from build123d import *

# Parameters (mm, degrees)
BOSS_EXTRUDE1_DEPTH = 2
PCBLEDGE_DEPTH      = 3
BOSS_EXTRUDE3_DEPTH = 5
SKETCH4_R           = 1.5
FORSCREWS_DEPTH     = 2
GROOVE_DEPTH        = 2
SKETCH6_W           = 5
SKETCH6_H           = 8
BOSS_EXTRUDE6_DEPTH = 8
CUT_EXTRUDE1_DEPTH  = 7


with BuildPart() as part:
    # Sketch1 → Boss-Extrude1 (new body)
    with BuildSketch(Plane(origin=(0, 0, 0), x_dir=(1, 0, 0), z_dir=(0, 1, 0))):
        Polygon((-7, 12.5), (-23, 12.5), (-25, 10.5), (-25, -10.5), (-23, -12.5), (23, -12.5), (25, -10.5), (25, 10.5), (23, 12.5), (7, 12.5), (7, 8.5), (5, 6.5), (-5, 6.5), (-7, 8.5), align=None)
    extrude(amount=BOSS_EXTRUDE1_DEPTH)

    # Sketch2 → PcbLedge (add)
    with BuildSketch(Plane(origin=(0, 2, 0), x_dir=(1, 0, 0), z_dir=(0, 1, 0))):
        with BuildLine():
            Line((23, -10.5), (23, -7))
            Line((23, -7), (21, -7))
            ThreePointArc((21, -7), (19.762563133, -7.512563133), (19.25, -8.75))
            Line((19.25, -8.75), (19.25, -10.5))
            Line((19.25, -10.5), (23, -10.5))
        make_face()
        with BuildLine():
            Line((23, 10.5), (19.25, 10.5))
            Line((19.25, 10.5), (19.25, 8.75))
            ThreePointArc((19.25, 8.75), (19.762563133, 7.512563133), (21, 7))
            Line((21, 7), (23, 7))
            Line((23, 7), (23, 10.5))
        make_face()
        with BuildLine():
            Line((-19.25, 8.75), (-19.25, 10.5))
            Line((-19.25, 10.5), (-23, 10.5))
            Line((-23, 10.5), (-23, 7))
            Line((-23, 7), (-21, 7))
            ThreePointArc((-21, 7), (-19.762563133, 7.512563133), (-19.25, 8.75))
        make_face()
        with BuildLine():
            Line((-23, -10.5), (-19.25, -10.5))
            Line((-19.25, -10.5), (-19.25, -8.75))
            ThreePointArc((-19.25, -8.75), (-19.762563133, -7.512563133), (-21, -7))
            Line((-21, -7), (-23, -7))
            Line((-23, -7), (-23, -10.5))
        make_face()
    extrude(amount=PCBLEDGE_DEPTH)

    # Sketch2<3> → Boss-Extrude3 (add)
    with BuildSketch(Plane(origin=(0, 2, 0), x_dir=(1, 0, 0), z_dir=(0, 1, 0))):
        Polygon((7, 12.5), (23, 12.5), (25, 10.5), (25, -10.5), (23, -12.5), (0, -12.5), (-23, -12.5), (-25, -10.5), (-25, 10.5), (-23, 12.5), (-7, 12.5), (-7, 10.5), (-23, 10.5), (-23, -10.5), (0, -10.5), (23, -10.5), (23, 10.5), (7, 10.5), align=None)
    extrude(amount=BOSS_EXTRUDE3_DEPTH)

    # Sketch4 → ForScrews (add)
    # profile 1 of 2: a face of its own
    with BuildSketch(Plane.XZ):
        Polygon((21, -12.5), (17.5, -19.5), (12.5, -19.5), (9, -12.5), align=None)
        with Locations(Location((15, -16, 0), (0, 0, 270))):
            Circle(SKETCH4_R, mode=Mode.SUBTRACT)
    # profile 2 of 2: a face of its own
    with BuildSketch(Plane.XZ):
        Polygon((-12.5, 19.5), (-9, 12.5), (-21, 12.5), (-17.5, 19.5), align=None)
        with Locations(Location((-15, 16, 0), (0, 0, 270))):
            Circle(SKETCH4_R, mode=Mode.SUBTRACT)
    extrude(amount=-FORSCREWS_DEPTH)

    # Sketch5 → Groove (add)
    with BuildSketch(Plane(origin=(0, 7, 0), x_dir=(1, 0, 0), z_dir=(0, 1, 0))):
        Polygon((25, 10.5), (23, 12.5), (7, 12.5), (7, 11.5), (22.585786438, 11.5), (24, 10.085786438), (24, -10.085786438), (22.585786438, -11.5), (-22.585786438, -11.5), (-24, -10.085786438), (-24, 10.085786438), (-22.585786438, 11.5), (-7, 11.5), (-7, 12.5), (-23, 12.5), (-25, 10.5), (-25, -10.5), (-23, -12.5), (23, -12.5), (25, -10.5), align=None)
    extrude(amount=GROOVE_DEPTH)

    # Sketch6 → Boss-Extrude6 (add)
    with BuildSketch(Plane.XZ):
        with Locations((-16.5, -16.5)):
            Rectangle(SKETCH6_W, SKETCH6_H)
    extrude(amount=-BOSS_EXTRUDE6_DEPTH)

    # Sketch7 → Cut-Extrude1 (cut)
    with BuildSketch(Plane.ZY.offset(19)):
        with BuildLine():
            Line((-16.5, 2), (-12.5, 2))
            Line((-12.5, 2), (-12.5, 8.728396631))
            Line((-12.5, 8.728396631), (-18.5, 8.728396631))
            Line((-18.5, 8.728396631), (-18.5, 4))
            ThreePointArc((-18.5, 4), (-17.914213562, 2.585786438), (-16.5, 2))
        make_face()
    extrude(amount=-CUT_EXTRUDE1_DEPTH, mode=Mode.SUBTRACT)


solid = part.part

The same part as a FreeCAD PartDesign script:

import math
import FreeCAD as App
import Part
import Sketcher

V = App.Vector


def add_polygon(sketch, points):
    """Adds a closed chain of lines whose ends are joined by coincident constraints."""
    first, n = sketch.GeometryCount, len(points)
    for a, b in zip(points, points[1:] + points[:1]):
        sketch.addGeometry(Part.LineSegment(App.Vector(*a, 0), App.Vector(*b, 0)), False)
    for i in range(n):
        sketch.addConstraint(Sketcher.Constraint("Coincident", first + i, 2, first + (i + 1) % n, 1))

doc = App.newDocument("Part")
body = doc.addObject("PartDesign::Body", "Body")

# Sketch on XZ plane
sketch1 = body.newObject("Sketcher::SketchObject", "Sketch")
sketch1.AttachmentSupport = (doc.getObject("XZ_Plane"), [""])
sketch1.MapMode = "FlatFace"
add_polygon(sketch1, [(-7, -12.5), (-23, -12.5), (-25, -10.5), (-25, 10.5), (-23, 12.5), (23, 12.5), (25, 10.5), (25, -10.5), (23, -12.5), (7, -12.5), (7, -8.5), (5, -6.5), (-5, -6.5), (-7, -8.5)])  # lines 0-13
sketch1.addConstraint([
    Sketcher.Constraint("Horizontal", 0),
    Sketcher.Constraint("Vertical", 2),
    Sketcher.Constraint("Horizontal", 4),
    Sketcher.Constraint("Vertical", 6),
    Sketcher.Constraint("Horizontal", 8),
    Sketcher.Constraint("Vertical", 9),
    Sketcher.Constraint("Horizontal", 11),
    Sketcher.Constraint("Vertical", 13),
    Sketcher.Constraint("Symmetric", 0, 2, 4, 2, -1, 1),
    Sketcher.Constraint("Symmetric", 1, 2, 5, 2, -1, 1),
    Sketcher.Constraint("Symmetric", 3, 2, 7, 2, -1, 1),
    Sketcher.Constraint("Symmetric", 9, 2, 12, 2, -2),
    Sketcher.Constraint("Perpendicular", 1, 3),
    Sketcher.Constraint("Perpendicular", 5, 7),
    Sketcher.Constraint("Perpendicular", 7, 10),
    Sketcher.Constraint("Perpendicular", 10, 12),
    Sketcher.Constraint("Horizontal", 2, 2, 5, 2),
    Sketcher.Constraint("Vertical", 0, 2, 3, 2),
    Sketcher.Constraint("Equal", 7, 10),
    Sketcher.Constraint("DistanceX", 0, 2, 0, 1, 16.0),
    Sketcher.Constraint("DistanceX", 4, 1, 4, 2, 46.0),
    Sketcher.Constraint("DistanceX", 11, 2, 11, 1, 10.0),
    Sketcher.Constraint("DistanceY", 2, 1, 2, 2, 21.0),
    Sketcher.Constraint("DistanceY", 9, 1, 9, 2, 4.0),
])
pad1 = body.newObject("PartDesign::Pad", "Pad")
pad1.Profile = sketch1
pad1.Length = 2
pad1.Reversed = True

# Sketch on XZ plane
sketch2 = body.newObject("Sketcher::SketchObject", "Sketch001")
sketch2.AttachmentSupport = (doc.getObject("XZ_Plane"), [""])
sketch2.MapMode = "FlatFace"
sketch2.AttachmentOffset = App.Placement(V(0, 0, -2), App.Rotation())
sketch2.addGeometry([
    Part.LineSegment(V(23, 10.5, 0), V(23, 7, 0)),  # 0
    Part.LineSegment(V(23, 7, 0), V(21, 7, 0)),  # 1
    Part.ArcOfCircle(Part.Circle(V(21, 8.8, 0), V(0, 0, 1), 1.8), math.radians(180), math.radians(270)),  # 2
    Part.LineSegment(V(19.2, 8.8, 0), V(19.2, 10.5, 0)),  # 3
    Part.LineSegment(V(19.2, 10.5, 0), V(23, 10.5, 0)),  # 4
    Part.LineSegment(V(23, -10.5, 0), V(19.2, -10.5, 0)),  # 5
    Part.LineSegment(V(19.2, -10.5, 0), V(19.2, -8.8, 0)),  # 6
    Part.ArcOfCircle(Part.Circle(V(21, -8.8, 0), V(0, 0, 1), 1.8), math.radians(90), math.radians(180)),  # 7
    Part.LineSegment(V(21, -7, 0), V(23, -7, 0)),  # 8
    Part.LineSegment(V(23, -7, 0), V(23, -10.5, 0)),  # 9
    Part.LineSegment(V(-19.2, -8.8, 0), V(-19.2, -10.5, 0)),  # 10
    Part.LineSegment(V(-19.2, -10.5, 0), V(-23, -10.5, 0)),  # 11
    Part.LineSegment(V(-23, -10.5, 0), V(-23, -7, 0)),  # 12
    Part.LineSegment(V(-23, -7, 0), V(-21, -7, 0)),  # 13
    Part.ArcOfCircle(Part.Circle(V(-21, -8.8, 0), V(0, 0, 1), 1.8), math.radians(0), math.radians(90)),  # 14
    Part.LineSegment(V(-23, 10.5, 0), V(-19.2, 10.5, 0)),  # 15
    Part.LineSegment(V(-19.2, 10.5, 0), V(-19.2, 8.8, 0)),  # 16
    Part.ArcOfCircle(Part.Circle(V(-21, 8.8, 0), V(0, 0, 1), 1.8), math.radians(-90), math.radians(0)),  # 17
    Part.LineSegment(V(-21, 7, 0), V(-23, 7, 0)),  # 18
    Part.LineSegment(V(-23, 7, 0), V(-23, 10.5, 0)),  # 19
], False)
sketch2.addConstraint([
    Sketcher.Constraint("Coincident", 0, 2, 1, 1),
    Sketcher.Constraint("Tangent", 1, 2, 2, 2),
    Sketcher.Constraint("Tangent", 2, 1, 3, 1),
    Sketcher.Constraint("Coincident", 3, 2, 4, 1),
    Sketcher.Constraint("Coincident", 4, 2, 0, 1),
    Sketcher.Constraint("Coincident", 5, 2, 6, 1),
    Sketcher.Constraint("Tangent", 6, 2, 7, 2),
    Sketcher.Constraint("Tangent", 7, 1, 8, 1),
    Sketcher.Constraint("Coincident", 8, 2, 9, 1),
    Sketcher.Constraint("Coincident", 9, 2, 5, 1),
    Sketcher.Constraint("Coincident", 10, 2, 11, 1),
    Sketcher.Constraint("Coincident", 11, 2, 12, 1),
    Sketcher.Constraint("Coincident", 12, 2, 13, 1),
    Sketcher.Constraint("Tangent", 13, 2, 14, 2),
    Sketcher.Constraint("Tangent", 14, 1, 10, 1),
    Sketcher.Constraint("Coincident", 15, 2, 16, 1),
    Sketcher.Constraint("Tangent", 16, 2, 17, 2),
    Sketcher.Constraint("Tangent", 17, 1, 18, 1),
    Sketcher.Constraint("Coincident", 18, 2, 19, 1),
    Sketcher.Constraint("Coincident", 19, 2, 15, 1),
    Sketcher.Constraint("Vertical", 0),
    Sketcher.Constraint("Horizontal", 1),
    Sketcher.Constraint("Vertical", 3),
    Sketcher.Constraint("Horizontal", 4),
    Sketcher.Constraint("Horizontal", 5),
    Sketcher.Constraint("Vertical", 6),
    Sketcher.Constraint("Horizontal", 8),
    Sketcher.Constraint("Vertical", 9),
    Sketcher.Constraint("Vertical", 10),
    Sketcher.Constraint("Horizontal", 11),
    Sketcher.Constraint("Vertical", 12),
    Sketcher.Constraint("Horizontal", 13),
    Sketcher.Constraint("Horizontal", 15),
    Sketcher.Constraint("Vertical", 16),
    Sketcher.Constraint("Horizontal", 18),
    Sketcher.Constraint("Vertical", 19),
    Sketcher.Constraint("Equal", 2, 7),
    Sketcher.Constraint("Equal", 7, 14),
    Sketcher.Constraint("Equal", 14, 17),
    Sketcher.Constraint("Symmetric", 2, 3, 14, 3, -1, 1),
    Sketcher.Constraint("Symmetric", 7, 3, 17, 3, -1, 1),
    Sketcher.Constraint("Symmetric", 4, 2, 11, 2, -1, 1),
    Sketcher.Constraint("Symmetric", 9, 2, 19, 2, -1, 1),
    Sketcher.Constraint("Symmetric", 7, 3, 14, 3, -2),
    Sketcher.Constraint("Symmetric", 9, 2, 11, 2, -2),
    Sketcher.Constraint("DistanceX", 1, 2, 1, 1, 2.0),
    Sketcher.Constraint("Radius", 2, 1.75),
    Sketcher.Constraint("DistanceY", 0, 2, 0, 1, 3.5),
    Sketcher.Constraint("DistanceX", -1, 1, 2, 3, 21.0),
    Sketcher.Constraint("DistanceY", -1, 1, 0, 2, 7.0),
])
pad2 = body.newObject("PartDesign::Pad", "Pad001")
pad2.Profile = sketch2
pad2.Length = 3
pad2.Reversed = True

# Sketch on XZ plane
sketch3 = body.newObject("Sketcher::SketchObject", "Sketch002")
sketch3.AttachmentSupport = (doc.getObject("XZ_Plane"), [""])
sketch3.MapMode = "FlatFace"
sketch3.AttachmentOffset = App.Placement(V(0, 0, -2), App.Rotation())
add_polygon(sketch3, [(23, -12.5), (7, -12.5), (7, -10.5), (23, -10.5), (23, 10.5), (-23, 10.5), (-23, -10.5), (-7, -10.5), (-7, -12.5), (-23, -12.5), (-25, -10.5), (-25, 10.5), (-23, 12.5), (23, 12.5), (25, 10.5), (25, -10.5)])  # lines 0-15
sketch3.addConstraint([
    Sketcher.Constraint("Horizontal", 0),
    Sketcher.Constraint("Vertical", 1),
    Sketcher.Constraint("Horizontal", 2),
    Sketcher.Constraint("Vertical", 3),
    Sketcher.Constraint("Horizontal", 4),
    Sketcher.Constraint("Vertical", 5),
    Sketcher.Constraint("Horizontal", 6),
    Sketcher.Constraint("Vertical", 7),
    Sketcher.Constraint("Horizontal", 8),
    Sketcher.Constraint("Vertical", 10),
    Sketcher.Constraint("Horizontal", 12),
    Sketcher.Constraint("Vertical", 14),
    Sketcher.Constraint("Symmetric", 2, 2, 4, 2, -1, 1),
    Sketcher.Constraint("Symmetric", 8, 2, 12, 2, -1, 1),
    Sketcher.Constraint("Symmetric", 9, 2, 13, 2, -1, 1),
    Sketcher.Constraint("Symmetric", 11, 2, 15, 2, -1, 1),
    Sketcher.Constraint("Symmetric", 1, 2, 6, 2, -2),
    Sketcher.Constraint("Perpendicular", 9, 11),
    Sketcher.Constraint("Perpendicular", 13, 15),
    Sketcher.Constraint("Horizontal", 6, 2, 9, 2),
    Sketcher.Constraint("Horizontal", 4, 2, 10, 2),
    Sketcher.Constraint("Vertical", 5, 2, 8, 2),
    Sketcher.Constraint("Vertical", 8, 2, 11, 2),
    Sketcher.Constraint("DistanceX", 0, 2, 0, 1, 16.0),
    Sketcher.Constraint("DistanceX", 4, 2, 4, 1, 46.0),
    Sketcher.Constraint("DistanceY", 1, 1, 1, 2, 2.0),
    Sketcher.Constraint("DistanceY", 3, 1, 3, 2, 21.0),
])
pad3 = body.newObject("PartDesign::Pad", "Pad002")
pad3.Profile = sketch3
pad3.Length = 5
pad3.Reversed = True

# Sketch on XZ plane
sketch4 = body.newObject("Sketcher::SketchObject", "Sketch003")
sketch4.AttachmentSupport = (doc.getObject("XZ_Plane"), [""])
sketch4.MapMode = "FlatFace"
add_polygon(sketch4, [(17.5, -19.5), (21, -12.5), (9, -12.5), (12.5, -19.5)])  # lines 0-3
sketch4.addGeometry(Part.Circle(V(15, -16, 0), V(0, 0, 1), 1.5), False)  # 4
add_polygon(sketch4, [(-9, 12.5), (-12.5, 19.5), (-17.5, 19.5), (-21, 12.5)])  # lines 5-8
sketch4.addGeometry(Part.Circle(V(-15, 16, 0), V(0, 0, 1), 1.5), False)  # 9
sketch4.addConstraint([
    Sketcher.Constraint("Horizontal", 1),
    Sketcher.Constraint("Horizontal", 3),
    Sketcher.Constraint("Horizontal", 6),
    Sketcher.Constraint("Horizontal", 8),
    Sketcher.Constraint("Equal", 4, 9),
    Sketcher.Constraint("Symmetric", 4, 3, 9, 3, -1, 1),
    Sketcher.Constraint("Symmetric", 2, 2, 5, 2, -1, 1),
    Sketcher.Constraint("Symmetric", 0, 2, 7, 2, -1, 1),
    Sketcher.Constraint("Parallel", 2, 5),
    Sketcher.Constraint("Parallel", 0, 7),
    Sketcher.Constraint("Equal", 0, 2),
    Sketcher.Constraint("Diameter", 4, 3.0),
    Sketcher.Constraint("DistanceX", 1, 2, 1, 1, 12.0),
    Sketcher.Constraint("DistanceX", 3, 1, 3, 2, 5.0),
    Sketcher.Constraint("DistanceX", -1, 1, 4, 3, 15.0),
    Sketcher.Constraint("DistanceY", 4, 3, -1, 1, 16.0),
    Sketcher.Constraint("DistanceX", -1, 1, 0, 2, 21.0),
    Sketcher.Constraint("DistanceY", 2, 2, 1, 2, 7.0),
    Sketcher.Constraint("DistanceY", 1, 2, 5, 2, 32.0),
])
pad4 = body.newObject("PartDesign::Pad", "Pad003")
pad4.Profile = sketch4
pad4.Length = 2
pad4.Reversed = True

# Sketch on XZ plane
sketch5 = body.newObject("Sketcher::SketchObject", "Sketch004")
sketch5.AttachmentSupport = (doc.getObject("XZ_Plane"), [""])
sketch5.MapMode = "FlatFace"
sketch5.AttachmentOffset = App.Placement(V(0, 0, -7), App.Rotation())
add_polygon(sketch5, [(25, -10.5), (23, -12.5), (7, -12.5), (7, -11.5), (22.6, -11.5), (24, -10.1), (24, 10.1), (22.6, 11.5), (-22.6, 11.5), (-24, 10.1), (-24, -10.1), (-22.6, -11.5), (-7, -11.5), (-7, -12.5), (-23, -12.5), (-25, -10.5), (-25, 10.5), (-23, 12.5), (23, 12.5), (25, 10.5)])  # lines 0-19
sketch5.addConstraint([
    Sketcher.Constraint("Horizontal", 1),
    Sketcher.Constraint("Vertical", 2),
    Sketcher.Constraint("Horizontal", 3),
    Sketcher.Constraint("Vertical", 5),
    Sketcher.Constraint("Horizontal", 7),
    Sketcher.Constraint("Vertical", 9),
    Sketcher.Constraint("Horizontal", 11),
    Sketcher.Constraint("Vertical", 12),
    Sketcher.Constraint("Horizontal", 13),
    Sketcher.Constraint("Vertical", 15),
    Sketcher.Constraint("Horizontal", 17),
    Sketcher.Constraint("Vertical", 19),
    Sketcher.Constraint("Symmetric", 3, 2, 7, 2, -1, 1),
    Sketcher.Constraint("Symmetric", 4, 2, 8, 2, -1, 1),
    Sketcher.Constraint("Symmetric", 6, 2, 10, 2, -1, 1),
    Sketcher.Constraint("Symmetric", 0, 2, 16, 2, -1, 1),
    Sketcher.Constraint("Symmetric", 13, 2, 17, 2, -1, 1),
    Sketcher.Constraint("Symmetric", 14, 2, 18, 2, -1, 1),
    Sketcher.Constraint("Parallel", 0, 4),
    Sketcher.Constraint("Perpendicular", 4, 6),
    Sketcher.Constraint("Perpendicular", 8, 10),
    Sketcher.Constraint("Parallel", 10, 14),
    Sketcher.Constraint("Perpendicular", 14, 16),
    Sketcher.Constraint("Horizontal", 5, 2, 8, 2),
    Sketcher.Constraint("Horizontal", 15, 2, 18, 2),
    Sketcher.Constraint("Vertical", 3, 2, 6, 2),
    Sketcher.Constraint("Equal", 3, 11),
    Sketcher.Constraint("DistanceX", 1, 2, 1, 1, 16.0),
    Sketcher.Constraint("DistanceX", 17, 1, 17, 2, 46.0),
    Sketcher.Constraint("DistanceY", 2, 1, 2, 2, 1.0),
    Sketcher.Constraint("DistanceY", 15, 1, 15, 2, 21.0),
    Sketcher.Constraint("Distance", 4, 2.0),
    Sketcher.Constraint("DistanceX", -1, 1, 4, 2, 24.0),
    Sketcher.Constraint("DistanceX", 14, 2, -1, 1, 25.0),
])
pad5 = body.newObject("PartDesign::Pad", "Pad004")
pad5.Profile = sketch5
pad5.Length = 2
pad5.Reversed = True

# Sketch on XZ plane
sketch6 = body.newObject("Sketcher::SketchObject", "Sketch005")
sketch6.AttachmentSupport = (doc.getObject("XZ_Plane"), [""])
sketch6.MapMode = "FlatFace"
add_polygon(sketch6, [(-19, -12), (-19, -20), (-14, -20), (-14, -12)])  # lines 0-3
sketch6.addConstraint([
    Sketcher.Constraint("Vertical", 0),
    Sketcher.Constraint("Horizontal", 1),
    Sketcher.Constraint("Vertical", 2),
    Sketcher.Constraint("Horizontal", 3),
    Sketcher.Constraint("DistanceX", 1, 1, 1, 2, 5.0),
    Sketcher.Constraint("DistanceY", 0, 2, 0, 1, 8.0),
    Sketcher.Constraint("DistanceX", 0, 2, -1, 1, 19.0),
    Sketcher.Constraint("DistanceY", 0, 2, -1, 1, 20.5),
])
pad6 = body.newObject("PartDesign::Pad", "Pad005")
pad6.Profile = sketch6
pad6.Length = 8
pad6.Reversed = True

# Sketch on YZ plane
sketch7 = body.newObject("Sketcher::SketchObject", "Sketch006")
sketch7.AttachmentSupport = (doc.getObject("YZ_Plane"), [""])
sketch7.MapMode = "FlatFace"
sketch7.AttachmentOffset = App.Placement(V(0, 0, -19), App.Rotation())
sketch7.addGeometry([
    Part.LineSegment(V(2, -16.5, 0), V(2, -12.5, 0)),  # 0
    Part.LineSegment(V(2, -12.5, 0), V(8.7, -12.5, 0)),  # 1
    Part.LineSegment(V(8.7, -12.5, 0), V(8.7, -18.5, 0)),  # 2
    Part.LineSegment(V(8.7, -18.5, 0), V(4, -18.5, 0)),  # 3
    Part.ArcOfCircle(Part.Circle(V(4, -16.5, 0), V(0, 0, 1), 2), math.radians(-180), math.radians(-90)),  # 4
], False)
sketch7.addConstraint([
    Sketcher.Constraint("Coincident", 0, 2, 1, 1),
    Sketcher.Constraint("Coincident", 1, 2, 2, 1),
    Sketcher.Constraint("Coincident", 2, 2, 3, 1),
    Sketcher.Constraint("Tangent", 3, 2, 4, 2),
    Sketcher.Constraint("Tangent", 4, 1, 0, 1),
    Sketcher.Constraint("Vertical", 0),
    Sketcher.Constraint("Horizontal", 1),
    Sketcher.Constraint("Vertical", 2),
    Sketcher.Constraint("Horizontal", 3),
    Sketcher.Constraint("Radius", 4, 2.0),
    Sketcher.Constraint("DistanceY", 0, 1, 0, 2, 4.0),
    Sketcher.Constraint("DistanceX", -1, 1, 4, 3, 4.0),
    Sketcher.Constraint("DistanceY", 4, 3, -1, 1, 16.5),
    Sketcher.Constraint("DistanceX", 1, 1, 1, 2, 6.728397),
])
pocket1 = body.newObject("PartDesign::Pocket", "Pocket")
pocket1.Profile = sketch7
pocket1.Length = 7
pocket1.Reversed = True

doc.recompute()
